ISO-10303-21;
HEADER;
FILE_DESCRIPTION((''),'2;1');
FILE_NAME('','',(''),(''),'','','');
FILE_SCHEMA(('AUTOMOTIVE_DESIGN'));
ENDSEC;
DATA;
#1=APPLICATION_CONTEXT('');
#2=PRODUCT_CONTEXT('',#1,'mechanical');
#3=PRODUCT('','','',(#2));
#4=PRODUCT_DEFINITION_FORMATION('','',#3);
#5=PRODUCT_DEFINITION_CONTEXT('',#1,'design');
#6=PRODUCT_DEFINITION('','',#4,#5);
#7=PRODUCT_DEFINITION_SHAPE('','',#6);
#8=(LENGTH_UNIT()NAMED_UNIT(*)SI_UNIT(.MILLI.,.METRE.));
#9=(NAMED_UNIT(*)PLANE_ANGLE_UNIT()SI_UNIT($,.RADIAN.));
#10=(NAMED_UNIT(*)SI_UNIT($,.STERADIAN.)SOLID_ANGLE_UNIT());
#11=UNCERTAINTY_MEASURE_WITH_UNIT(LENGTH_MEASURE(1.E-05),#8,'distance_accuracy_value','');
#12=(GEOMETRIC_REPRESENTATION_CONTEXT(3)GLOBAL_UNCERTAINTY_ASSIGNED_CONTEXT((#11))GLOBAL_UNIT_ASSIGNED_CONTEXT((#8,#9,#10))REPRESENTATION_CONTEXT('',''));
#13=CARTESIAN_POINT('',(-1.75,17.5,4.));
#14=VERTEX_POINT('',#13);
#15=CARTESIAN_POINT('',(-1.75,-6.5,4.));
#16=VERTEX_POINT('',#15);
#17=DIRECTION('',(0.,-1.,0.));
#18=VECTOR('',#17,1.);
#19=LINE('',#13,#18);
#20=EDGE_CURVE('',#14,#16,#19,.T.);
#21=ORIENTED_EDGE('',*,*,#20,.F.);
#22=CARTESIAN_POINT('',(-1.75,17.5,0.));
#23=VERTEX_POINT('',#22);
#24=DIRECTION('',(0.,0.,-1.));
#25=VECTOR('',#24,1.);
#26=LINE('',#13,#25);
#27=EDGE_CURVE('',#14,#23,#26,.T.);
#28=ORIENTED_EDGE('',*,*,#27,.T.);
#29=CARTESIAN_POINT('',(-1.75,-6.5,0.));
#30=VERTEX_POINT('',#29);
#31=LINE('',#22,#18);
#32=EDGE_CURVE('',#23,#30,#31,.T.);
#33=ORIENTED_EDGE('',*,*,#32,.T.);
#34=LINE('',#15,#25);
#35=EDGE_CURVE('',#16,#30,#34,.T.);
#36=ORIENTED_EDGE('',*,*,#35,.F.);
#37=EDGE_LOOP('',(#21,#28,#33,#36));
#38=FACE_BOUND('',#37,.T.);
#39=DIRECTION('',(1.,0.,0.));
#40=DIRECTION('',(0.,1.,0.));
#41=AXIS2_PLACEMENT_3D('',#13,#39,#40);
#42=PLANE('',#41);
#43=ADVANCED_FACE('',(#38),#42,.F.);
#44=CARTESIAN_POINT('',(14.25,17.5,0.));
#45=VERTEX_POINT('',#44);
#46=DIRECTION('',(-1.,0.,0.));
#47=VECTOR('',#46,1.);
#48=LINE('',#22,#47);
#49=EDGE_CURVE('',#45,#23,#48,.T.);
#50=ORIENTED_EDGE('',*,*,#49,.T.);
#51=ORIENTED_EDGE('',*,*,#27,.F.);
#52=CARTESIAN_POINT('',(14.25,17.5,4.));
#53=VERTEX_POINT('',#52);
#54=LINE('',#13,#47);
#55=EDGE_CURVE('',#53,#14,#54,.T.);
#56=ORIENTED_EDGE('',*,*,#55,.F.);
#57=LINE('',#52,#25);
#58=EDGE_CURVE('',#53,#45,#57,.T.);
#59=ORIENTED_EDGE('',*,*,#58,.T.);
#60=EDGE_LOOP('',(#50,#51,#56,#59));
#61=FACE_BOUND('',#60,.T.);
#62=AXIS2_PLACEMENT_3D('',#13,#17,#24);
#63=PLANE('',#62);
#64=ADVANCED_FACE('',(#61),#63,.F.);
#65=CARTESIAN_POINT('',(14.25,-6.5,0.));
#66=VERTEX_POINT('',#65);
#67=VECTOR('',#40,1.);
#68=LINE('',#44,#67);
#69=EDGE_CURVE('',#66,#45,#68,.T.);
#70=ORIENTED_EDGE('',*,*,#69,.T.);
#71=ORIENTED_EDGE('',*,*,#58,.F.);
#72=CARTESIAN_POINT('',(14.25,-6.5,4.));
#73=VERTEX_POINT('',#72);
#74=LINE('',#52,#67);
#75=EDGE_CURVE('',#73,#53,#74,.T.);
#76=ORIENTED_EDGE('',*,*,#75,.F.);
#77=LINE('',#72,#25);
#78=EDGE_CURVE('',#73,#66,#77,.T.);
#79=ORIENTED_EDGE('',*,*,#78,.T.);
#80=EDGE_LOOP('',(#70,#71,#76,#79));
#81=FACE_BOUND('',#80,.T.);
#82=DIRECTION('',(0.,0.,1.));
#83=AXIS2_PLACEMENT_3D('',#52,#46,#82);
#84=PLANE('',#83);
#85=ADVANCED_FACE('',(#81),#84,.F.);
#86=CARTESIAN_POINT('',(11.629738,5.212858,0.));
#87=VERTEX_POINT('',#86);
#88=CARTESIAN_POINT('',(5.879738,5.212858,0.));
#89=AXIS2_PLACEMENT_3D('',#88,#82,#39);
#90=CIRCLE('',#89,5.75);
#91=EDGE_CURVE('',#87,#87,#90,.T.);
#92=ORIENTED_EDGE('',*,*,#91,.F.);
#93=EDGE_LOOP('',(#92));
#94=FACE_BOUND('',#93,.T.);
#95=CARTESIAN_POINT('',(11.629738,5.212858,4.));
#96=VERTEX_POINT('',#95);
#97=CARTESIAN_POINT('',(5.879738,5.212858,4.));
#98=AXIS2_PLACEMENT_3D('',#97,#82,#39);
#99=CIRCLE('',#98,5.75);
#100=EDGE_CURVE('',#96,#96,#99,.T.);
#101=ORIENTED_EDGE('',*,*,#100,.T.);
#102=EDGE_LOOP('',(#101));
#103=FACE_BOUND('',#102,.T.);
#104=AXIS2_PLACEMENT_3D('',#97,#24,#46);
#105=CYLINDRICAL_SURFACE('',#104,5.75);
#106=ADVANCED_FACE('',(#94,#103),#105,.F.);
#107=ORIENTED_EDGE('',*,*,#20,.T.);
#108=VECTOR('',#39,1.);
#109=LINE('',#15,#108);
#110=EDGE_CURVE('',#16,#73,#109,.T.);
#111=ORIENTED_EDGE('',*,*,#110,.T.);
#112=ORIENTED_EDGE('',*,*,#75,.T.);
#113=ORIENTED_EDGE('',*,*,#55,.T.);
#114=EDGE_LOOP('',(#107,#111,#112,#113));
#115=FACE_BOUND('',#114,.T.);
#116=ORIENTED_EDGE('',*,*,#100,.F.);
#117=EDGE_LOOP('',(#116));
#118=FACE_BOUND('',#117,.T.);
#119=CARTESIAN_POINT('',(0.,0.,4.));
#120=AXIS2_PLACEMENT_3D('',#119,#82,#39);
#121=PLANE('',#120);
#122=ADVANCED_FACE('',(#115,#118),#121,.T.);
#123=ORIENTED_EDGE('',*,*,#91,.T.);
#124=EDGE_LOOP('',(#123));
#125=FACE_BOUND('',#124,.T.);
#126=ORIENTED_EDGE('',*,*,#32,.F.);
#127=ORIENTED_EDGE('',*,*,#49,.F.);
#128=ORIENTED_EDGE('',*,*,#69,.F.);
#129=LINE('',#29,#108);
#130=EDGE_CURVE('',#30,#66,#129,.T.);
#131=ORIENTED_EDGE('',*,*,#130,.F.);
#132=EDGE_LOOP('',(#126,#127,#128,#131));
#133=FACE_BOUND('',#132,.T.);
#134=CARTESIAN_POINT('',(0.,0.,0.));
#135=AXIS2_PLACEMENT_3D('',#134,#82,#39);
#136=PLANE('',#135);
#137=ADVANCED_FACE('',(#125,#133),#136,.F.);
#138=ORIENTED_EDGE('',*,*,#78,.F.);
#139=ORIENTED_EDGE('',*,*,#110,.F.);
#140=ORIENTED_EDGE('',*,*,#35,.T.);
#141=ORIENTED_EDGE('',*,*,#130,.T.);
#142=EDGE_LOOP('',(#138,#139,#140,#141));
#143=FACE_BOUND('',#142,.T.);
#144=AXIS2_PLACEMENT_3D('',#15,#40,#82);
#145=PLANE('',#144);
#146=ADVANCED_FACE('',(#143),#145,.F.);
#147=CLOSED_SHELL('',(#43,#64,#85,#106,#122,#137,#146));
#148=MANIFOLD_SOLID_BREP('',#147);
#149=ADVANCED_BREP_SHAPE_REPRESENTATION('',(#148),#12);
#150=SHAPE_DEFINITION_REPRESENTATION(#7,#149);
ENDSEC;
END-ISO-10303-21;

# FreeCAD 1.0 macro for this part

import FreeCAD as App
import Part
import Sketcher
Q = App.Units.Quantity


def add_polygon(sketch, points):
    """Adds a closed chain of lines whose ends are joined by coincident constraints."""
    first, n = sketch.GeometryCount, len(points)
    for a, b in zip(points, points[1:] + points[:1]):
        sketch.addGeometry(Part.LineSegment(App.Vector(*a, 0), App.Vector(*b, 0)), False)
    for i in range(n):
        sketch.addConstraint(Sketcher.Constraint("Coincident", first + i, 2, first + (i + 1) % n, 1))

doc = App.newDocument("Part")
body = doc.addObject("PartDesign::Body", "Body")

# Sketch on XY plane
sketch1 = doc.addObject("Sketcher::SketchObject", "Sketch")
body.addObject(sketch1)
sketch1.AttachmentSupport = (doc.XY_Plane, [""])
sketch1.MapMode = "FlatFace"
add_polygon(sketch1, [(-2, 18), (-2, -6), (14, -6), (14, 18)])  # lines 0-3
sketch1.addGeometry(Part.Circle(App.Vector(6, 5, 0), App.Vector(0, 0, 1), 6), False)  # 4
sketch1.addConstraint([
    Sketcher.Constraint("Vertical", 0),
    Sketcher.Constraint("Horizontal", 1),
    Sketcher.Constraint("Vertical", 2),
    Sketcher.Constraint("Horizontal", 3),
    Sketcher.Constraint("Diameter", 4, Q("11.5 mm")),
    Sketcher.Constraint("DistanceX", 1, 1, 1, 2, Q("16 mm")),
    Sketcher.Constraint("DistanceY", 0, 2, 0, 1, Q("24 mm")),
    Sketcher.Constraint("DistanceY", 0, 2, -1, 1, Q("6.5 mm")),
    Sketcher.Constraint("DistanceX", 0, 2, -1, 1, Q("1.75 mm")),
    Sketcher.Constraint("DistanceY", -1, 1, 4, 3, Q("5.212858 mm")),
    Sketcher.Constraint("DistanceX", -1, 1, 4, 3, Q("5.879738 mm")),
])
pad1 = doc.addObject("PartDesign::Pad", "Pad")
body.addObject(pad1)
pad1.Profile = sketch1
pad1.Length = 4

doc.recompute()
